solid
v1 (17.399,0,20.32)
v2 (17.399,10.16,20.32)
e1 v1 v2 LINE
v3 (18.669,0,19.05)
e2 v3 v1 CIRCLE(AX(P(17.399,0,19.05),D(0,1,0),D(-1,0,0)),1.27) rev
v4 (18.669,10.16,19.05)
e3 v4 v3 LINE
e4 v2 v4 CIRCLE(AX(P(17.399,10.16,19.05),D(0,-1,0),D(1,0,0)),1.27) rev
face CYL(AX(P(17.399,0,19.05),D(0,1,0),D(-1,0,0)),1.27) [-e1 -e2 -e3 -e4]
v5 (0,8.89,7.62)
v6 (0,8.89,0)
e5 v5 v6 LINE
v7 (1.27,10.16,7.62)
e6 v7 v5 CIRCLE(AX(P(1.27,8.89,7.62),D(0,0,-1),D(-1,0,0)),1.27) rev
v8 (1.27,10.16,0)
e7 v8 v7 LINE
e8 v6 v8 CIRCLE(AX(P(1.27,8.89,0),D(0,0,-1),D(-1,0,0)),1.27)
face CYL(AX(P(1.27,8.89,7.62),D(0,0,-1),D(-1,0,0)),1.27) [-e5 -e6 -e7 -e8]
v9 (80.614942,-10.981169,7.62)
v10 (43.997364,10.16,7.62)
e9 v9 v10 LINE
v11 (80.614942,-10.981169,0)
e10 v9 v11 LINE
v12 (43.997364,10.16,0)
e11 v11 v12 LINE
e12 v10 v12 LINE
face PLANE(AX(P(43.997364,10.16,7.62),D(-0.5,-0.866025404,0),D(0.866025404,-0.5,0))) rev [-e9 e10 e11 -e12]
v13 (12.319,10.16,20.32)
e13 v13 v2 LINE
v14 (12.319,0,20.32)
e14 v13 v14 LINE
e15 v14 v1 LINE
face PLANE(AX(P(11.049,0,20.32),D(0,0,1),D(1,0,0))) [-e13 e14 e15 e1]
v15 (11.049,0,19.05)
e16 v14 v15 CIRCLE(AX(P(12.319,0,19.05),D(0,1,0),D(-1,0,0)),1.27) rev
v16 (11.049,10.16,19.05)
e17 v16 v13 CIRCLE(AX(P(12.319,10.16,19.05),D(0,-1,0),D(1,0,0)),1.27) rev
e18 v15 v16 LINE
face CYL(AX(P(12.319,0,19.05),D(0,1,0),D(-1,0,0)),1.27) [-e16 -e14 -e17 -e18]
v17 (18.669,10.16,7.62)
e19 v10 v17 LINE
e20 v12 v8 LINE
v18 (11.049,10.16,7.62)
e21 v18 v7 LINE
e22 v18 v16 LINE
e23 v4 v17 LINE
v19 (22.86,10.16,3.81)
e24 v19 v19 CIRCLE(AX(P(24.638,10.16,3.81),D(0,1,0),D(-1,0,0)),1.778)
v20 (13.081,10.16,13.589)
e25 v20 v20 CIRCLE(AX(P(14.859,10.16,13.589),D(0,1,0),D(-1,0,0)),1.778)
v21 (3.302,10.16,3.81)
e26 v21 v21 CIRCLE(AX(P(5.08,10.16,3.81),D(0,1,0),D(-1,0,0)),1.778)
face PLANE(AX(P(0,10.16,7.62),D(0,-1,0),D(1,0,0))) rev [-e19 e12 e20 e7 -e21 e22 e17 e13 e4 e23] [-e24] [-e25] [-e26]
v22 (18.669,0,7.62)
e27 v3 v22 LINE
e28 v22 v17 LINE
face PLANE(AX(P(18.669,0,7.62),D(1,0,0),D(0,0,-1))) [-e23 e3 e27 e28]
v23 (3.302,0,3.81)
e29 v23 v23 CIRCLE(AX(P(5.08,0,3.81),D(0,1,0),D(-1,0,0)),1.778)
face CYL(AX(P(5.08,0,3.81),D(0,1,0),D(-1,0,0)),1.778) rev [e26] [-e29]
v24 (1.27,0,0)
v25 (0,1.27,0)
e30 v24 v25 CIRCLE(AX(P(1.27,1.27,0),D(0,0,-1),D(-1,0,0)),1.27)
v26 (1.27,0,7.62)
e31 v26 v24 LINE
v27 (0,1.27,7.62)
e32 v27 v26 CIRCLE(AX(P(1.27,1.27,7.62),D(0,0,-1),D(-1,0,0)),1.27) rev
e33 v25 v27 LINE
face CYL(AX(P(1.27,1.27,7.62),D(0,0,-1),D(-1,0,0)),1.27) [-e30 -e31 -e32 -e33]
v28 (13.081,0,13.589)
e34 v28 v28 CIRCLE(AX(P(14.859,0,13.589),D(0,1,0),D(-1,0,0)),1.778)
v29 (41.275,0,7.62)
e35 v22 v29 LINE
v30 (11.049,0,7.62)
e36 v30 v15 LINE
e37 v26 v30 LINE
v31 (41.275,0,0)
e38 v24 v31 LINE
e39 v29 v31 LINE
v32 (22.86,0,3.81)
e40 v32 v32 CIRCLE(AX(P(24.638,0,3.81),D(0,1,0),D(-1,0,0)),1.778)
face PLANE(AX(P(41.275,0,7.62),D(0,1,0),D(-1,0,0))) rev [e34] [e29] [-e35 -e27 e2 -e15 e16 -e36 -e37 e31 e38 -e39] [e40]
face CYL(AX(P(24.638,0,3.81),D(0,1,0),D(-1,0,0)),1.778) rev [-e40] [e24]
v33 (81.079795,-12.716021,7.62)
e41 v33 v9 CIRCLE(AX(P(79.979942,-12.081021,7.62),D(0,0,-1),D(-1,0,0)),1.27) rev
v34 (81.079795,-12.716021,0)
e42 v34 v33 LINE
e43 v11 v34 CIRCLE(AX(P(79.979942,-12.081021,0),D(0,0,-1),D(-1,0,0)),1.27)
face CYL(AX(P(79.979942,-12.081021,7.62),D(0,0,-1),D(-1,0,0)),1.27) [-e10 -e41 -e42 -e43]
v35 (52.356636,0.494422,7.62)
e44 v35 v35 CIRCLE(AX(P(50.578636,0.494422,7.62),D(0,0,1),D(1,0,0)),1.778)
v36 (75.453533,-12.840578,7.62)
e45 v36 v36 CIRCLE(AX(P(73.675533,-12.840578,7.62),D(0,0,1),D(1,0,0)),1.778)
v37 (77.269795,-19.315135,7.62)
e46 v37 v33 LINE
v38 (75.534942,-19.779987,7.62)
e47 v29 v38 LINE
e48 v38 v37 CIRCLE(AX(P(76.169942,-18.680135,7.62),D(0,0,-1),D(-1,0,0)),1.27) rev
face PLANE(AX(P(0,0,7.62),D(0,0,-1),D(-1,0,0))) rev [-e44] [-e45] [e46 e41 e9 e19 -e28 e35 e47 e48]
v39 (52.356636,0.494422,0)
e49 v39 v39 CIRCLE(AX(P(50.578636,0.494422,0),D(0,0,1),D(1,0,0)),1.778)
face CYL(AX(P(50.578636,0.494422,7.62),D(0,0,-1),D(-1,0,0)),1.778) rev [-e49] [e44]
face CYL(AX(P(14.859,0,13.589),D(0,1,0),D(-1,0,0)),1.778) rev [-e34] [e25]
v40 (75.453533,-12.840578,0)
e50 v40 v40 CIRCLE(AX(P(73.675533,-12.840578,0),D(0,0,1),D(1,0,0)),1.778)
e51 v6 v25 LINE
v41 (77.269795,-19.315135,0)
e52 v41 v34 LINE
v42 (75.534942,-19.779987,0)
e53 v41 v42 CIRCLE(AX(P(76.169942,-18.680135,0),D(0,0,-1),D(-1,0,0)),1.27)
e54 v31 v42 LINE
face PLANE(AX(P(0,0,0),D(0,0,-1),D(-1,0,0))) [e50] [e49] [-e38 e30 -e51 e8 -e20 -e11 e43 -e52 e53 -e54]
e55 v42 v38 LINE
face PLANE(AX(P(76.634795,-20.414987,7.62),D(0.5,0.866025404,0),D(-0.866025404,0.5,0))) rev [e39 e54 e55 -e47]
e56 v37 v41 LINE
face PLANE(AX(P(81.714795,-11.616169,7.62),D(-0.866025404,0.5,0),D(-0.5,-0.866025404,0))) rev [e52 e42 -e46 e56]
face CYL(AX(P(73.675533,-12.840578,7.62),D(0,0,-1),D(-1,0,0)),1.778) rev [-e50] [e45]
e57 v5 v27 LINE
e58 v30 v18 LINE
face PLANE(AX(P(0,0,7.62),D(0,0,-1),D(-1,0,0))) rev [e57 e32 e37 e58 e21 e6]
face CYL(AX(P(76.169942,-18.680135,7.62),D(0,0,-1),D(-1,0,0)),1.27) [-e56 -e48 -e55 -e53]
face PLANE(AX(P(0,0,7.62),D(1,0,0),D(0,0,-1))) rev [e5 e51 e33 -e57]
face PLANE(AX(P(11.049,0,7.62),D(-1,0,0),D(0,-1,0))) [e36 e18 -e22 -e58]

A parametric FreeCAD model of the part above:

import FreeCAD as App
import Part
import Sketcher
Q = App.Units.Quantity


def edges_at(feature, points):
    """Names of the edges that pass closest to the given points."""
    edges = feature.Shape.Edges
    near = lambda p: min(range(len(edges)), key=lambda i: edges[i].distToShape(Part.Vertex(*p))[0])
    return sorted({f"Edge{near(p) + 1}" for p in points})

doc = App.newDocument("Part")
body = doc.addObject("PartDesign::Body", "Body")

# Sketch on XY plane
sketch1 = body.newObject("Sketcher::SketchObject", "Sketch")
sketch1.AttachmentSupport = (doc.getObject("XY_Plane"), [""])
sketch1.MapMode = "FlatFace"
sketch1.addGeometry([
    Part.LineSegment(App.Vector(0, 10.2, 0), App.Vector(0, 0, 0)),  # 0
    Part.LineSegment(App.Vector(0, 0, 0), App.Vector(41.3, 0, 0)),  # 1
    Part.LineSegment(App.Vector(41.3, 0, 0), App.Vector(76.6, -20.4, 0)),  # 2
    Part.LineSegment(App.Vector(76.6, -20.4, 0), App.Vector(81.7, -11.6, 0)),  # 3
    Part.LineSegment(App.Vector(81.7, -11.6, 0), App.Vector(44, 10.2, 0)),  # 4
    Part.LineSegment(App.Vector(44, 10.2, 0), App.Vector(0, 10.2, 0)),  # 5
    Part.Circle(App.Vector(73.7, -12.8, 0), App.Vector(0, 0, 1), 1.8),  # 6
    Part.Circle(App.Vector(50.6, 0.5, 0), App.Vector(0, 0, 1), 1.8),  # 7
], False)
sketch1.addConstraint([
    Sketcher.Constraint("Coincident", 0, 2, 1, 1),
    Sketcher.Constraint("Coincident", 1, 2, 2, 1),
    Sketcher.Constraint("Coincident", 2, 2, 3, 1),
    Sketcher.Constraint("Coincident", 3, 2, 4, 1),
    Sketcher.Constraint("Coincident", 4, 2, 5, 1),
    Sketcher.Constraint("Coincident", 5, 2, 0, 1),
    Sketcher.Constraint("Vertical", 0),
    Sketcher.Constraint("Horizontal", 1),
    Sketcher.Constraint("Horizontal", 5),
    Sketcher.Constraint("Coincident", 0, 2, -1, 1),
    Sketcher.Constraint("Equal", 6, 7),
    Sketcher.Constraint("Perpendicular", 2, 3),
    Sketcher.Constraint("Perpendicular", 3, 4),
    Sketcher.Constraint("Diameter", 6, Q("0.14 in")),
    Sketcher.Constraint("DistanceY", 0, 2, 0, 1, Q("0.4 in")),
    Sketcher.Constraint("Angle", 2, Q("-30 deg")),
    Sketcher.Constraint("Distance", 3, Q("0.4 in")),
    Sketcher.Constraint("DistanceX", 1, 1, 1, 2, Q("1.625 in")),
    Sketcher.Constraint("DistanceY", 6, 3, 7, 3, Q("0.525 in")),
    Sketcher.Constraint("DistanceY", 3, 2, -1, 1, Q("11.616169 mm")),
    Sketcher.Constraint("DistanceX", 6, 3, 2, 2, Q("2.959261 mm")),
    Sketcher.Constraint("DistanceY", 2, 2, 6, 3, Q("7.574409 mm")),
    Sketcher.Constraint("DistanceX", 7, 3, 2, 2, Q("26.056159 mm")),
])
pad1 = body.newObject("PartDesign::Pad", "Pad")
pad1.Profile = sketch1
pad1.Length = Q("0.3 in")

# Sketch on XZ plane
sketch2 = body.newObject("Sketcher::SketchObject", "Sketch001")
sketch2.AttachmentSupport = (doc.getObject("XZ_Plane"), [""])
sketch2.MapMode = "FlatFace"
sketch2.AttachmentOffset = App.Placement(App.Vector(0, 0, -0.4 * 25.4), App.Rotation())
sketch2.addGeometry([
    Part.Circle(App.Vector(5.1, 3.8, 0), App.Vector(0, 0, 1), 1.8),
    Part.Circle(App.Vector(24.6, 3.8, 0), App.Vector(0, 0, 1), 1.8),
], False)
sketch2.addConstraint([
    Sketcher.Constraint("Equal", 0, 1),
    Sketcher.Constraint("Horizontal", 0, 3, 1, 3),
    Sketcher.Constraint("Diameter", 0, Q("0.14 in")),
    Sketcher.Constraint("DistanceX", -1, 1, 0, 3, Q("0.2 in")),
    Sketcher.Constraint("DistanceY", -1, 1, 0, 3, Q("0.15 in")),
    Sketcher.Constraint("DistanceX", -1, 1, 1, 3, Q("0.97 in")),
])
pocket1 = body.newObject("PartDesign::Pocket", "Pocket")
pocket1.Profile = sketch2
pocket1.Length = Q("0.4 in")
pocket1.Reversed = True

# Sketch on XZ plane
sketch3 = body.newObject("Sketcher::SketchObject", "Sketch002")
sketch3.AttachmentSupport = (doc.getObject("XZ_Plane"), [""])
sketch3.MapMode = "FlatFace"
sketch3.AttachmentOffset = App.Placement(App.Vector(0, 0, -0.4 * 25.4), App.Rotation())
sketch3.addGeometry([
    Part.LineSegment(App.Vector(11, 7.6, 0), App.Vector(11, 20.3, 0)),  # 0
    Part.LineSegment(App.Vector(11, 20.3, 0), App.Vector(18.7, 20.3, 0)),  # 1
    Part.LineSegment(App.Vector(18.7, 20.3, 0), App.Vector(18.7, 7.6, 0)),  # 2
    Part.LineSegment(App.Vector(18.7, 7.6, 0), App.Vector(11, 7.6, 0)),  # 3
    Part.Circle(App.Vector(14.9, 13.6, 0), App.Vector(0, 0, 1), 1.8),  # 4
], False)
sketch3.addConstraint([
    Sketcher.Constraint("Coincident", 0, 2, 1, 1),
    Sketcher.Constraint("Coincident", 1, 2, 2, 1),
    Sketcher.Constraint("Coincident", 2, 2, 3, 1),
    Sketcher.Constraint("Coincident", 3, 2, 0, 1),
    Sketcher.Constraint("Vertical", 0),
    Sketcher.Constraint("Horizontal", 1),
    Sketcher.Constraint("Vertical", 2),
    Sketcher.Constraint("Horizontal", 3),
    Sketcher.Constraint("Diameter", 4, Q("0.14 in")),
    Sketcher.Constraint("DistanceX", 1, 1, 1, 2, Q("0.3 in")),
    Sketcher.Constraint("DistanceY", 0, 1, 0, 2, Q("0.5 in")),
    Sketcher.Constraint("DistanceY", -1, 1, 0, 2, Q("0.8 in")),
    Sketcher.Constraint("DistanceX", 0, 2, 4, 3, Q("0.15 in")),
    Sketcher.Constraint("DistanceX", -1, 1, 4, 3, Q("0.585 in")),
    Sketcher.Constraint("DistanceY", -1, 1, 4, 3, Q("0.535 in")),
])
pad2 = body.newObject("PartDesign::Pad", "Pad001")
pad2.Profile = sketch3
pad2.Length = Q("0.4 in")
doc.recompute()

fillet = body.newObject("PartDesign::Fillet", "Fillet")
fillet.Base = (pad2, edges_at(pad2, [
    (0, 0, 3.81),
    (0, 10.16, 3.81),
    (81.715, -11.616, 3.81),
    (76.635, -20.415, 3.81),
    (11.049, 5.08, 20.32),
    (18.669, 5.08, 20.32),
]))
fillet.Radius = Q("0.05 in")

doc.recompute()
